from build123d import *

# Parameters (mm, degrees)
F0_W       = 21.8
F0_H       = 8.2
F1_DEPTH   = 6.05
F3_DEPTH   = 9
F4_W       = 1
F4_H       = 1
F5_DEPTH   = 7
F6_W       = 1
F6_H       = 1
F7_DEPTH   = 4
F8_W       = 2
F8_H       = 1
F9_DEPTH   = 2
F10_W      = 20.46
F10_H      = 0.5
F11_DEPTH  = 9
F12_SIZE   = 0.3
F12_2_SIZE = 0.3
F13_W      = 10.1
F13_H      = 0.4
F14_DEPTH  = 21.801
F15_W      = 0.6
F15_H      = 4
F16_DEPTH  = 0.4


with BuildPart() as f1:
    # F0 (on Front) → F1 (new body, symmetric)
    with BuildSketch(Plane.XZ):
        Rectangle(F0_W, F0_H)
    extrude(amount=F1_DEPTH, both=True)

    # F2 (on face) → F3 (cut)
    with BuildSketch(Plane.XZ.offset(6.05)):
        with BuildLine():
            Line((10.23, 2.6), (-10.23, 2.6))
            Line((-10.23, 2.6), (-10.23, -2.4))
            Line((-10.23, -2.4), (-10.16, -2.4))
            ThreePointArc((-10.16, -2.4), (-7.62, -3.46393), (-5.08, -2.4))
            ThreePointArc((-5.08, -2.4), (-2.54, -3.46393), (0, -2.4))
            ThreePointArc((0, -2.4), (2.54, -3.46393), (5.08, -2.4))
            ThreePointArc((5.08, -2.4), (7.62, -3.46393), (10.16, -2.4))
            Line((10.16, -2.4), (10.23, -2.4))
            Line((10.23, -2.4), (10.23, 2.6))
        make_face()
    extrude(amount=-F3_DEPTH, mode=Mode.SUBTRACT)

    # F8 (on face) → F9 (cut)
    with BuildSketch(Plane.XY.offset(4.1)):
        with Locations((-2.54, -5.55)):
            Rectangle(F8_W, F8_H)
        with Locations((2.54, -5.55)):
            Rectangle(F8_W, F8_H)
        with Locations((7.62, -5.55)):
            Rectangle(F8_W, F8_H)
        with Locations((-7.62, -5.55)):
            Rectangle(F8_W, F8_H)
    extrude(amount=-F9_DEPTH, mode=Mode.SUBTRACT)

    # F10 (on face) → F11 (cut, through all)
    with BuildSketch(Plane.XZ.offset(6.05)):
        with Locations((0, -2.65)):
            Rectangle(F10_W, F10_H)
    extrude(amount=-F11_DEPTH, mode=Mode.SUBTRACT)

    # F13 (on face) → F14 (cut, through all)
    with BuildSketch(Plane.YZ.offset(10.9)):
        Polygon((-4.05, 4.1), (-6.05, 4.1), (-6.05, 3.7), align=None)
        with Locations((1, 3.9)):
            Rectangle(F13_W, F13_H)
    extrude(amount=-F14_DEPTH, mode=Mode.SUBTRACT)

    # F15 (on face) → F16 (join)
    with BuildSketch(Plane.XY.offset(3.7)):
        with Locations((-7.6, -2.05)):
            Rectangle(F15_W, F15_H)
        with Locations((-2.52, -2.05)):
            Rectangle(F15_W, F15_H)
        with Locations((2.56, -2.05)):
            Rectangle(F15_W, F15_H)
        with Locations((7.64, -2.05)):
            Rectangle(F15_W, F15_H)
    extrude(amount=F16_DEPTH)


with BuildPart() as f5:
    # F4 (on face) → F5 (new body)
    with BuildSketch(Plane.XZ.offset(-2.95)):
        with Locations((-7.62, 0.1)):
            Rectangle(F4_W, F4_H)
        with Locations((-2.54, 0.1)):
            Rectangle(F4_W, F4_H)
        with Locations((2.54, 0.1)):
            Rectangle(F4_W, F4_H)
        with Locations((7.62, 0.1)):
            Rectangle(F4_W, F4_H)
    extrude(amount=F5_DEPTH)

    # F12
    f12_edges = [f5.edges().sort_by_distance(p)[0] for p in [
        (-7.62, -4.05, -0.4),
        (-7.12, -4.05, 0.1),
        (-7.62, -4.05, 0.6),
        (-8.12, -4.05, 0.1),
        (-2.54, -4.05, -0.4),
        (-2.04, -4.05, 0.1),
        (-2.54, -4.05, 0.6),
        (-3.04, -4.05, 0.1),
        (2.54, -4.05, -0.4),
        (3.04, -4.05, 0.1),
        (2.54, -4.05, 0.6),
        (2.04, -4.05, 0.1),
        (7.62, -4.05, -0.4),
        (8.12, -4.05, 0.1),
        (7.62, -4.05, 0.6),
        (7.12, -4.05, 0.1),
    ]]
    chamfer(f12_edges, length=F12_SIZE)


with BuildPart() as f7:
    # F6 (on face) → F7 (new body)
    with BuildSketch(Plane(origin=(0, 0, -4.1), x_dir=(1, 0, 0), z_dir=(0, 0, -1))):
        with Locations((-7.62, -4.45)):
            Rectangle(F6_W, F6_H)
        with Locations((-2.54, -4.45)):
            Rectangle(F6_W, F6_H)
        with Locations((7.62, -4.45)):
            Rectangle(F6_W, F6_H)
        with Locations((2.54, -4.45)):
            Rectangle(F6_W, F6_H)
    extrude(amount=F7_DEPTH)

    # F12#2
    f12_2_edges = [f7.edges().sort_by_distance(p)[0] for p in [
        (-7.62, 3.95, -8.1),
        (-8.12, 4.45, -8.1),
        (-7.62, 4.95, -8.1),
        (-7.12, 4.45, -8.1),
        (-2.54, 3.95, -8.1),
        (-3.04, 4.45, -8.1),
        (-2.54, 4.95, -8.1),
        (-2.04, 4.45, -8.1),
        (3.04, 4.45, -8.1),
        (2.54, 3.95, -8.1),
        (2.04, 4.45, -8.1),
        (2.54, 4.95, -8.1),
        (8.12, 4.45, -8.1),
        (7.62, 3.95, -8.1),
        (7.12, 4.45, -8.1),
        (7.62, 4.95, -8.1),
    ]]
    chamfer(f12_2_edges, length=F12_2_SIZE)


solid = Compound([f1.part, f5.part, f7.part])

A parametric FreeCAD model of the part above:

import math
import FreeCAD as App
import Part
import Sketcher
from FreeCAD import Vector
Q = App.Units.Quantity


def edges_at(feature, points):
    """Names of the edges that pass closest to the given points."""
    edges = feature.Shape.Edges
    near = lambda p: min(range(len(edges)), key=lambda i: edges[i].distToShape(Part.Vertex(*p))[0])
    return sorted({f"Edge{near(p) + 1}" for p in points})


def add_polygon(sketch, points):
    """Adds a closed chain of lines whose ends are joined by coincident constraints."""
    first, n = sketch.GeometryCount, len(points)
    for a, b in zip(points, points[1:] + points[:1]):
        sketch.addGeometry(Part.LineSegment(App.Vector(*a, 0), App.Vector(*b, 0)), False)
    for i in range(n):
        sketch.addConstraint(Sketcher.Constraint("Coincident", first + i, 2, first + (i + 1) % n, 1))

doc = App.newDocument("Part")
body = doc.addObject("PartDesign::Body", "Body")

# Sketch on XZ plane
sketch1 = body.newObject("Sketcher::SketchObject", "Sketch")
sketch1.AttachmentSupport = (doc.getObject("XZ_Plane"), [""])
sketch1.MapMode = "FlatFace"
add_polygon(sketch1, [(-11, 4), (-11, -4), (11, -4), (11, 4)])  # lines 0-3
sketch1.addConstraint([
    Sketcher.Constraint("Vertical", 0),
    Sketcher.Constraint("Horizontal", 1),
    Sketcher.Constraint("Vertical", 2),
    Sketcher.Constraint("Horizontal", 3),
    Sketcher.Constraint("Symmetric", 0, 2, 2, 2, -1, 1),
    Sketcher.Constraint("DistanceX", 1, 1, 1, 2, Q("21.8 mm")),
    Sketcher.Constraint("DistanceY", 0, 2, 0, 1, Q("8.2 mm")),
])
pad1 = body.newObject("PartDesign::Pad", "Pad")
pad1.Profile = sketch1
pad1.Length = 12.1
pad1.Midplane = True

# Sketch on XZ plane
sketch2 = body.newObject("Sketcher::SketchObject", "Sketch001")
sketch2.AttachmentSupport = (doc.getObject("XZ_Plane"), [""])
sketch2.MapMode = "FlatFace"
sketch2.AttachmentOffset = App.Placement(Vector(0, 0, 6.05), App.Rotation())
sketch2.addGeometry([
    Part.LineSegment(Vector(10.23, 2.6, 0), Vector(-10.23, 2.6, 0)),  # 0
    Part.LineSegment(Vector(-10.23, 2.6, 0), Vector(-10.23, -2.4, 0)),  # 1
    Part.LineSegment(Vector(-10.23, -2.4, 0), Vector(-10.16, -2.4, 0)),  # 2
    Part.ArcOfCircle(Part.Circle(Vector(-7.62, 0.1, 0), Vector(0, 0, 1), 3.56), math.radians(-135), math.radians(-45)),  # 3
    Part.ArcOfCircle(Part.Circle(Vector(-2.54, 0.1, 0), Vector(0, 0, 1), 3.56), math.radians(-135), math.radians(-45)),  # 4
    Part.ArcOfCircle(Part.Circle(Vector(2.54, 0.1, 0), Vector(0, 0, 1), 3.56), math.radians(-135), math.radians(-45)),  # 5
    Part.ArcOfCircle(Part.Circle(Vector(7.62, 0.1, 0), Vector(0, 0, 1), 3.56), math.radians(-135), math.radians(-45)),  # 6
    Part.LineSegment(Vector(10.16, -2.4, 0), Vector(10.23, -2.4, 0)),  # 7
    Part.LineSegment(Vector(10.23, -2.4, 0), Vector(10.23, 2.6, 0)),  # 8
], False)
sketch2.addConstraint([
    Sketcher.Constraint("Coincident", 0, 2, 1, 1),
    Sketcher.Constraint("Coincident", 1, 2, 2, 1),
    Sketcher.Constraint("Coincident", 2, 2, 3, 1),
    Sketcher.Constraint("Coincident", 3, 2, 4, 1),
    Sketcher.Constraint("Coincident", 4, 2, 5, 1),
    Sketcher.Constraint("Coincident", 5, 2, 6, 1),
    Sketcher.Constraint("Coincident", 6, 2, 7, 1),
    Sketcher.Constraint("Coincident", 7, 2, 8, 1),
    Sketcher.Constraint("Coincident", 8, 2, 0, 1),
    Sketcher.Constraint("Horizontal", 0),
    Sketcher.Constraint("Vertical", 1),
    Sketcher.Constraint("Horizontal", 2),
    Sketcher.Constraint("Horizontal", 7),
    Sketcher.Constraint("Vertical", 8),
    Sketcher.Constraint("Equal", 3, 4),
    Sketcher.Constraint("Equal", 4, 5),
    Sketcher.Constraint("Equal", 5, 6),
    Sketcher.Constraint("Symmetric", 4, 3, 5, 3, -2),
    Sketcher.Constraint("Symmetric", 3, 3, 6, 3, -2),
    Sketcher.Constraint("Symmetric", 1, 2, 7, 2, -2),
    Sketcher.Constraint("Horizontal", 3, 3, 4, 3),
    Sketcher.Constraint("Horizontal", 2, 2, 3, 2),
    Sketcher.Constraint("Horizontal", 3, 2, 4, 2),
    Sketcher.Constraint("DistanceY", 1, 2, 1, 1, Q("5 mm")),
    Sketcher.Constraint("DistanceX", 0, 2, 0, 1, Q("20.46 mm")),
    Sketcher.Constraint("DistanceX", 2, 1, 2, 2, Q("0.07 mm")),
    Sketcher.Constraint("DistanceY", -1, 1, 3, 3, Q("0.100001 mm")),
    Sketcher.Constraint("DistanceY", -1, 1, 0, 2, Q("2.6 mm")),
])
pocket1 = body.newObject("PartDesign::Pocket", "Pocket")
pocket1.Profile = sketch2
pocket1.Length = 9

# Sketch on XY plane
sketch3 = body.newObject("Sketcher::SketchObject", "Sketch002")
sketch3.AttachmentSupport = (doc.getObject("XY_Plane"), [""])
sketch3.MapMode = "FlatFace"
sketch3.AttachmentOffset = App.Placement(Vector(0, 0, 4.1), App.Rotation())
add_polygon(sketch3, [(-3.5, -5), (-3.5, -6), (-1.5, -6), (-1.5, -5)])  # lines 0-3
add_polygon(sketch3, [(1.5, -5), (1.5, -6), (3.5, -6), (3.5, -5)])  # lines 4-7
add_polygon(sketch3, [(6.6, -5), (6.6, -6), (8.6, -6), (8.6, -5)])  # lines 8-11
add_polygon(sketch3, [(-8.6, -5), (-8.6, -6), (-6.6, -6), (-6.6, -5)])  # lines 12-15
sketch3.addConstraint([
    Sketcher.Constraint("Vertical", 0),
    Sketcher.Constraint("Horizontal", 1),
    Sketcher.Constraint("Vertical", 2),
    Sketcher.Constraint("Horizontal", 3),
    Sketcher.Constraint("Vertical", 4),
    Sketcher.Constraint("Horizontal", 5),
    Sketcher.Constraint("Vertical", 6),
    Sketcher.Constraint("Horizontal", 7),
    Sketcher.Constraint("Vertical", 8),
    Sketcher.Constraint("Horizontal", 9),
    Sketcher.Constraint("Vertical", 10),
    Sketcher.Constraint("Horizontal", 11),
    Sketcher.Constraint("Vertical", 12),
    Sketcher.Constraint("Horizontal", 13),
    Sketcher.Constraint("Vertical", 14),
    Sketcher.Constraint("Horizontal", 15),
    Sketcher.Constraint("Symmetric", 1, 2, 4, 2, -2),
    Sketcher.Constraint("Symmetric", 3, 2, 6, 2, -2),
    Sketcher.Constraint("Symmetric", 9, 2, 12, 2, -2),
    Sketcher.Constraint("Symmetric", 11, 2, 14, 2, -2),
    Sketcher.Constraint("Horizontal", 5, 2, 8, 2),
    Sketcher.Constraint("Horizontal", 7, 2, 10, 2),
    Sketcher.Constraint("Equal", 7, 9),
    Sketcher.Constraint("DistanceX", 1, 1, 1, 2, Q("2 mm")),
    Sketcher.Constraint("DistanceY", 0, 2, 0, 1, Q("1 mm")),
    Sketcher.Constraint("DistanceX", 0, 2, -1, 1, Q("3.54 mm")),
    Sketcher.Constraint("DistanceY", 0, 2, -1, 1, Q("6.05 mm")),
    Sketcher.Constraint("DistanceX", -1, 1, 8, 2, Q("6.62 mm")),
])
pocket2 = body.newObject("PartDesign::Pocket", "Pocket001")
pocket2.Profile = sketch3
pocket2.Length = 2

# Sketch on XZ plane
sketch4 = body.newObject("Sketcher::SketchObject", "Sketch003")
sketch4.AttachmentSupport = (doc.getObject("XZ_Plane"), [""])
sketch4.MapMode = "FlatFace"
sketch4.AttachmentOffset = App.Placement(Vector(0, 0, 6.05), App.Rotation())
add_polygon(sketch4, [(-10.2, -2.4), (-10.2, -2.9), (10.2, -2.9), (10.2, -2.4)])  # lines 0-3
sketch4.addConstraint([
    Sketcher.Constraint("Vertical", 0),
    Sketcher.Constraint("Horizontal", 1),
    Sketcher.Constraint("Vertical", 2),
    Sketcher.Constraint("Horizontal", 3),
    Sketcher.Constraint("DistanceY", 0, 2, 0, 1, Q("0.5 mm")),
    Sketcher.Constraint("DistanceX", 1, 1, 1, 2, Q("20.46 mm")),
    Sketcher.Constraint("DistanceY", 0, 2, -1, 1, Q("2.9 mm")),
    Sketcher.Constraint("DistanceX", 0, 2, -1, 1, Q("10.23 mm")),
])
pocket3 = body.newObject("PartDesign::Pocket", "Pocket002")
pocket3.Profile = sketch4
pocket3.Length = 9

# Sketch on YZ plane
sketch5 = body.newObject("Sketcher::SketchObject", "Sketch004")
sketch5.AttachmentSupport = (doc.getObject("YZ_Plane"), [""])
sketch5.MapMode = "FlatFace"
sketch5.AttachmentOffset = App.Placement(Vector(0, 0, 10.9), App.Rotation())
add_polygon(sketch5, [(-4.05, 4.1), (-6.05, 4.1), (-6.05, 3.7)])  # lines 0-2
add_polygon(sketch5, [(-4.05, 4.1), (-4.05, 3.7), (6.05, 3.7), (6.05, 4.1)])  # lines 3-6
sketch5.addConstraint([
    Sketcher.Constraint("Horizontal", 0),
    Sketcher.Constraint("Vertical", 1),
    Sketcher.Constraint("Vertical", 3),
    Sketcher.Constraint("Horizontal", 4),
    Sketcher.Constraint("Vertical", 5),
    Sketcher.Constraint("Horizontal", 6),
    Sketcher.Constraint("Coincident", 6, 2, 2, 2),
    Sketcher.Constraint("Symmetric", 1, 2, 4, 2, -2),
    Sketcher.Constraint("DistanceX", 0, 2, 0, 1, Q("2 mm")),
    Sketcher.Constraint("DistanceX", 4, 1, 4, 2, Q("10.1 mm")),
    Sketcher.Constraint("DistanceY", 1, 2, 1, 1, Q("0.4 mm")),
    Sketcher.Constraint("DistanceY", -1, 1, 0, 2, Q("4.1 mm")),
])
pocket4 = body.newObject("PartDesign::Pocket", "Pocket003")
pocket4.Profile = sketch5
pocket4.Type = "ThroughAll"

# Sketch on XY plane
sketch6 = body.newObject("Sketcher::SketchObject", "Sketch005")
sketch6.AttachmentSupport = (doc.getObject("XY_Plane"), [""])
sketch6.MapMode = "FlatFace"
sketch6.AttachmentOffset = App.Placement(Vector(0, 0, 3.7), App.Rotation())
add_polygon(sketch6, [(-7.9, -0.1), (-7.9, -4), (-7.3, -4), (-7.3, -0.1)])  # lines 0-3
add_polygon(sketch6, [(-2.8, -0.1), (-2.8, -4), (-2.2, -4), (-2.2, -0.1)])  # lines 4-7
add_polygon(sketch6, [(2.3, -0.1), (2.3, -4), (2.9, -4), (2.9, -0.1)])  # lines 8-11
add_polygon(sketch6, [(7.3, -0.1), (7.3, -4), (7.9, -4), (7.9, -0.1)])  # lines 12-15
sketch6.addConstraint([
    Sketcher.Constraint("Vertical", 0),
    Sketcher.Constraint("Horizontal", 1),
    Sketcher.Constraint("Vertical", 2),
    Sketcher.Constraint("Horizontal", 3),
    Sketcher.Constraint("Vertical", 4),
    Sketcher.Constraint("Horizontal", 5),
    Sketcher.Constraint("Vertical", 6),
    Sketcher.Constraint("Horizontal", 7),
    Sketcher.Constraint("Vertical", 8),
    Sketcher.Constraint("Horizontal", 9),
    Sketcher.Constraint("Vertical", 10),
    Sketcher.Constraint("Horizontal", 11),
    Sketcher.Constraint("Vertical", 12),
    Sketcher.Constraint("Horizontal", 13),
    Sketcher.Constraint("Vertical", 14),
    Sketcher.Constraint("Horizontal", 15),
    Sketcher.Constraint("Horizontal", 1, 2, 4, 2),
    Sketcher.Constraint("Horizontal", 3, 2, 6, 2),
    Sketcher.Constraint("Horizontal", 5, 2, 8, 2),
    Sketcher.Constraint("Horizontal", 7, 2, 10, 2),
    Sketcher.Constraint("Horizontal", 9, 2, 12, 2),
    Sketcher.Constraint("Horizontal", 11, 2, 14, 2),
    Sketcher.Constraint("Equal", 3, 5),
    Sketcher.Constraint("Equal", 7, 9),
    Sketcher.Constraint("Equal", 11, 13),
    Sketcher.Constraint("DistanceY", 0, 2, 0, 1, Q("4 mm")),
    Sketcher.Constraint("DistanceX", 1, 1, 1, 2, Q("0.6 mm")),
    Sketcher.Constraint("DistanceX", 0, 2, -1, 1, Q("7.9 mm")),
    Sketcher.Constraint("DistanceY", 0, 2, -1, 1, Q("4.05 mm")),
    Sketcher.Constraint("DistanceX", 4, 2, -1, 1, Q("2.82 mm")),
    Sketcher.Constraint("DistanceX", -1, 1, 8, 2, Q("2.26 mm")),
    Sketcher.Constraint("DistanceX", -1, 1, 12, 2, Q("7.34 mm")),
])
pad2 = body.newObject("PartDesign::Pad", "Pad001")
pad2.Profile = sketch6
pad2.Length = 0.4
body2 = doc.addObject("PartDesign::Body", "Body001")
body2.AllowCompound = True

# Sketch on XZ plane
sketch7 = body2.newObject("Sketcher::SketchObject", "Sketch006")
sketch7.AttachmentSupport = (doc.getObject("XZ_Plane001"), [""])
sketch7.MapMode = "FlatFace"
sketch7.AttachmentOffset = App.Placement(Vector(0, 0, -2.95), App.Rotation())
add_polygon(sketch7, [(-8.1, 0.6), (-8.1, -0.4), (-7.1, -0.4), (-7.1, 0.6)])  # lines 0-3
add_polygon(sketch7, [(-3, 0.6), (-3, -0.4), (-2, -0.4), (-2, 0.6)])  # lines 4-7
add_polygon(sketch7, [(2, 0.6), (2, -0.4), (3, -0.4), (3, 0.6)])  # lines 8-11
add_polygon(sketch7, [(7.1, 0.6), (7.1, -0.4), (8.1, -0.4), (8.1, 0.6)])  # lines 12-15
sketch7.addConstraint([
    Sketcher.Constraint("Vertical", 0),
    Sketcher.Constraint("Horizontal", 1),
    Sketcher.Constraint("Vertical", 2),
    Sketcher.Constraint("Horizontal", 3),
    Sketcher.Constraint("Vertical", 4),
    Sketcher.Constraint("Horizontal", 5),
    Sketcher.Constraint("Vertical", 6),
    Sketcher.Constraint("Horizontal", 7),
    Sketcher.Constraint("Vertical", 8),
    Sketcher.Constraint("Horizontal", 9),
    Sketcher.Constraint("Vertical", 10),
    Sketcher.Constraint("Horizontal", 11),
    Sketcher.Constraint("Vertical", 12),
    Sketcher.Constraint("Horizontal", 13),
    Sketcher.Constraint("Vertical", 14),
    Sketcher.Constraint("Horizontal", 15),
    Sketcher.Constraint("Symmetric", 5, 2, 8, 2, -2),
    Sketcher.Constraint("Symmetric", 7, 2, 10, 2, -2),
    Sketcher.Constraint("Symmetric", 1, 2, 12, 2, -2),
    Sketcher.Constraint("Symmetric", 3, 2, 14, 2, -2),
    Sketcher.Constraint("Horizontal", 1, 2, 4, 2),
    Sketcher.Constraint("Horizontal", 3, 2, 6, 2),
    Sketcher.Constraint("Equal", 3, 5),
    Sketcher.Constraint("Equal", 15, 0),
    Sketcher.Constraint("DistanceX", 1, 1, 1, 2, Q("1 mm")),
    Sketcher.Constraint("DistanceY", 0, 2, -1, 1, Q("0.4 mm")),
    Sketcher.Constraint("DistanceX", 0, 2, -1, 1, Q("8.12 mm")),
    Sketcher.Constraint("DistanceX", 4, 2, -1, 1, Q("3.04 mm")),
])
pad3 = body2.newObject("PartDesign::Pad", "Pad002")
pad3.Profile = sketch7
pad3.Length = 7
doc.recompute()

chamfer = body2.newObject("PartDesign::Chamfer", "Chamfer")
chamfer.Base = (pad3, edges_at(pad3, [
    (-7.62, -4.05, -0.4),
    (-7.12, -4.05, 0.1),
    (-7.62, -4.05, 0.6),
    (-8.12, -4.05, 0.1),
    (-2.54, -4.05, -0.4),
    (-2.04, -4.05, 0.1),
    (-2.54, -4.05, 0.6),
    (-3.04, -4.05, 0.1),
    (2.54, -4.05, -0.4),
    (3.04, -4.05, 0.1),
    (2.54, -4.05, 0.6),
    (2.04, -4.05, 0.1),
    (7.62, -4.05, -0.4),
    (8.12, -4.05, 0.1),
    (7.62, -4.05, 0.6),
    (7.12, -4.05, 0.1),
]))
chamfer.Size = 0.3
body3 = doc.addObject("PartDesign::Body", "Body002")
body3.AllowCompound = True

# Sketch on XY plane
sketch8 = body3.newObject("Sketcher::SketchObject", "Sketch007")
sketch8.AttachmentSupport = (doc.getObject("XY_Plane002"), [""])
sketch8.MapMode = "FlatFace"
sketch8.AttachmentOffset = App.Placement(Vector(0, 0, -4.1), App.Rotation())
add_polygon(sketch8, [(-8.1, 4), (-8.1, 5), (-7.1, 5), (-7.1, 4)])  # lines 0-3
add_polygon(sketch8, [(-3, 4), (-3, 5), (-2, 5), (-2, 4)])  # lines 4-7
add_polygon(sketch8, [(7.1, 4), (7.1, 5), (8.1, 5), (8.1, 4)])  # lines 8-11
add_polygon(sketch8, [(2, 4), (2, 5), (3, 5), (3, 4)])  # lines 12-15
sketch8.addConstraint([
    Sketcher.Constraint("Vertical", 0),
    Sketcher.Constraint("Horizontal", 1),
    Sketcher.Constraint("Vertical", 2),
    Sketcher.Constraint("Horizontal", 3),
    Sketcher.Constraint("Vertical", 4),
    Sketcher.Constraint("Horizontal", 5),
    Sketcher.Constraint("Vertical", 6),
    Sketcher.Constraint("Horizontal", 7),
    Sketcher.Constraint("Vertical", 8),
    Sketcher.Constraint("Horizontal", 9),
    Sketcher.Constraint("Vertical", 10),
    Sketcher.Constraint("Horizontal", 11),
    Sketcher.Constraint("Vertical", 12),
    Sketcher.Constraint("Horizontal", 13),
    Sketcher.Constraint("Vertical", 14),
    Sketcher.Constraint("Horizontal", 15),
    Sketcher.Constraint("Symmetric", 1, 2, 8, 2, -2),
    Sketcher.Constraint("Symmetric", 3, 2, 10, 2, -2),
    Sketcher.Constraint("Symmetric", 5, 2, 12, 2, -2),
    Sketcher.Constraint("Symmetric", 7, 2, 14, 2, -2),
    Sketcher.Constraint("Horizontal", 1, 2, 4, 2),
    Sketcher.Constraint("Horizontal", 3, 2, 6, 2),
    Sketcher.Constraint("Equal", 3, 5),
    Sketcher.Constraint("Equal", 15, 0),
    Sketcher.Constraint("DistanceX", 1, 1, 1, 2, Q("1 mm")),
    Sketcher.Constraint("DistanceX", 0, 2, -1, 1, Q("8.12 mm")),
    Sketcher.Constraint("DistanceY", -1, 1, 0, 2, Q("4.95 mm")),
    Sketcher.Constraint("DistanceX", 4, 2, -1, 1, Q("3.04 mm")),
])
pad4 = body3.newObject("PartDesign::Pad", "Pad003")
pad4.Profile = sketch8
pad4.Length = 4
pad4.Reversed = True
doc.recompute()

chamfer2 = body3.newObject("PartDesign::Chamfer", "Chamfer001")
chamfer2.Base = (pad4, edges_at(pad4, [
    (-7.62, 3.95, -8.1),
    (-8.12, 4.45, -8.1),
    (-7.62, 4.95, -8.1),
    (-7.12, 4.45, -8.1),
    (-2.54, 3.95, -8.1),
    (-3.04, 4.45, -8.1),
    (-2.54, 4.95, -8.1),
    (-2.04, 4.45, -8.1),
    (3.04, 4.45, -8.1),
    (2.54, 3.95, -8.1),
    (2.04, 4.45, -8.1),
    (2.54, 4.95, -8.1),
    (8.12, 4.45, -8.1),
    (7.62, 3.95, -8.1),
    (7.12, 4.45, -8.1),
    (7.62, 4.95, -8.1),
]))
chamfer2.Size = 0.3

doc.recompute()
